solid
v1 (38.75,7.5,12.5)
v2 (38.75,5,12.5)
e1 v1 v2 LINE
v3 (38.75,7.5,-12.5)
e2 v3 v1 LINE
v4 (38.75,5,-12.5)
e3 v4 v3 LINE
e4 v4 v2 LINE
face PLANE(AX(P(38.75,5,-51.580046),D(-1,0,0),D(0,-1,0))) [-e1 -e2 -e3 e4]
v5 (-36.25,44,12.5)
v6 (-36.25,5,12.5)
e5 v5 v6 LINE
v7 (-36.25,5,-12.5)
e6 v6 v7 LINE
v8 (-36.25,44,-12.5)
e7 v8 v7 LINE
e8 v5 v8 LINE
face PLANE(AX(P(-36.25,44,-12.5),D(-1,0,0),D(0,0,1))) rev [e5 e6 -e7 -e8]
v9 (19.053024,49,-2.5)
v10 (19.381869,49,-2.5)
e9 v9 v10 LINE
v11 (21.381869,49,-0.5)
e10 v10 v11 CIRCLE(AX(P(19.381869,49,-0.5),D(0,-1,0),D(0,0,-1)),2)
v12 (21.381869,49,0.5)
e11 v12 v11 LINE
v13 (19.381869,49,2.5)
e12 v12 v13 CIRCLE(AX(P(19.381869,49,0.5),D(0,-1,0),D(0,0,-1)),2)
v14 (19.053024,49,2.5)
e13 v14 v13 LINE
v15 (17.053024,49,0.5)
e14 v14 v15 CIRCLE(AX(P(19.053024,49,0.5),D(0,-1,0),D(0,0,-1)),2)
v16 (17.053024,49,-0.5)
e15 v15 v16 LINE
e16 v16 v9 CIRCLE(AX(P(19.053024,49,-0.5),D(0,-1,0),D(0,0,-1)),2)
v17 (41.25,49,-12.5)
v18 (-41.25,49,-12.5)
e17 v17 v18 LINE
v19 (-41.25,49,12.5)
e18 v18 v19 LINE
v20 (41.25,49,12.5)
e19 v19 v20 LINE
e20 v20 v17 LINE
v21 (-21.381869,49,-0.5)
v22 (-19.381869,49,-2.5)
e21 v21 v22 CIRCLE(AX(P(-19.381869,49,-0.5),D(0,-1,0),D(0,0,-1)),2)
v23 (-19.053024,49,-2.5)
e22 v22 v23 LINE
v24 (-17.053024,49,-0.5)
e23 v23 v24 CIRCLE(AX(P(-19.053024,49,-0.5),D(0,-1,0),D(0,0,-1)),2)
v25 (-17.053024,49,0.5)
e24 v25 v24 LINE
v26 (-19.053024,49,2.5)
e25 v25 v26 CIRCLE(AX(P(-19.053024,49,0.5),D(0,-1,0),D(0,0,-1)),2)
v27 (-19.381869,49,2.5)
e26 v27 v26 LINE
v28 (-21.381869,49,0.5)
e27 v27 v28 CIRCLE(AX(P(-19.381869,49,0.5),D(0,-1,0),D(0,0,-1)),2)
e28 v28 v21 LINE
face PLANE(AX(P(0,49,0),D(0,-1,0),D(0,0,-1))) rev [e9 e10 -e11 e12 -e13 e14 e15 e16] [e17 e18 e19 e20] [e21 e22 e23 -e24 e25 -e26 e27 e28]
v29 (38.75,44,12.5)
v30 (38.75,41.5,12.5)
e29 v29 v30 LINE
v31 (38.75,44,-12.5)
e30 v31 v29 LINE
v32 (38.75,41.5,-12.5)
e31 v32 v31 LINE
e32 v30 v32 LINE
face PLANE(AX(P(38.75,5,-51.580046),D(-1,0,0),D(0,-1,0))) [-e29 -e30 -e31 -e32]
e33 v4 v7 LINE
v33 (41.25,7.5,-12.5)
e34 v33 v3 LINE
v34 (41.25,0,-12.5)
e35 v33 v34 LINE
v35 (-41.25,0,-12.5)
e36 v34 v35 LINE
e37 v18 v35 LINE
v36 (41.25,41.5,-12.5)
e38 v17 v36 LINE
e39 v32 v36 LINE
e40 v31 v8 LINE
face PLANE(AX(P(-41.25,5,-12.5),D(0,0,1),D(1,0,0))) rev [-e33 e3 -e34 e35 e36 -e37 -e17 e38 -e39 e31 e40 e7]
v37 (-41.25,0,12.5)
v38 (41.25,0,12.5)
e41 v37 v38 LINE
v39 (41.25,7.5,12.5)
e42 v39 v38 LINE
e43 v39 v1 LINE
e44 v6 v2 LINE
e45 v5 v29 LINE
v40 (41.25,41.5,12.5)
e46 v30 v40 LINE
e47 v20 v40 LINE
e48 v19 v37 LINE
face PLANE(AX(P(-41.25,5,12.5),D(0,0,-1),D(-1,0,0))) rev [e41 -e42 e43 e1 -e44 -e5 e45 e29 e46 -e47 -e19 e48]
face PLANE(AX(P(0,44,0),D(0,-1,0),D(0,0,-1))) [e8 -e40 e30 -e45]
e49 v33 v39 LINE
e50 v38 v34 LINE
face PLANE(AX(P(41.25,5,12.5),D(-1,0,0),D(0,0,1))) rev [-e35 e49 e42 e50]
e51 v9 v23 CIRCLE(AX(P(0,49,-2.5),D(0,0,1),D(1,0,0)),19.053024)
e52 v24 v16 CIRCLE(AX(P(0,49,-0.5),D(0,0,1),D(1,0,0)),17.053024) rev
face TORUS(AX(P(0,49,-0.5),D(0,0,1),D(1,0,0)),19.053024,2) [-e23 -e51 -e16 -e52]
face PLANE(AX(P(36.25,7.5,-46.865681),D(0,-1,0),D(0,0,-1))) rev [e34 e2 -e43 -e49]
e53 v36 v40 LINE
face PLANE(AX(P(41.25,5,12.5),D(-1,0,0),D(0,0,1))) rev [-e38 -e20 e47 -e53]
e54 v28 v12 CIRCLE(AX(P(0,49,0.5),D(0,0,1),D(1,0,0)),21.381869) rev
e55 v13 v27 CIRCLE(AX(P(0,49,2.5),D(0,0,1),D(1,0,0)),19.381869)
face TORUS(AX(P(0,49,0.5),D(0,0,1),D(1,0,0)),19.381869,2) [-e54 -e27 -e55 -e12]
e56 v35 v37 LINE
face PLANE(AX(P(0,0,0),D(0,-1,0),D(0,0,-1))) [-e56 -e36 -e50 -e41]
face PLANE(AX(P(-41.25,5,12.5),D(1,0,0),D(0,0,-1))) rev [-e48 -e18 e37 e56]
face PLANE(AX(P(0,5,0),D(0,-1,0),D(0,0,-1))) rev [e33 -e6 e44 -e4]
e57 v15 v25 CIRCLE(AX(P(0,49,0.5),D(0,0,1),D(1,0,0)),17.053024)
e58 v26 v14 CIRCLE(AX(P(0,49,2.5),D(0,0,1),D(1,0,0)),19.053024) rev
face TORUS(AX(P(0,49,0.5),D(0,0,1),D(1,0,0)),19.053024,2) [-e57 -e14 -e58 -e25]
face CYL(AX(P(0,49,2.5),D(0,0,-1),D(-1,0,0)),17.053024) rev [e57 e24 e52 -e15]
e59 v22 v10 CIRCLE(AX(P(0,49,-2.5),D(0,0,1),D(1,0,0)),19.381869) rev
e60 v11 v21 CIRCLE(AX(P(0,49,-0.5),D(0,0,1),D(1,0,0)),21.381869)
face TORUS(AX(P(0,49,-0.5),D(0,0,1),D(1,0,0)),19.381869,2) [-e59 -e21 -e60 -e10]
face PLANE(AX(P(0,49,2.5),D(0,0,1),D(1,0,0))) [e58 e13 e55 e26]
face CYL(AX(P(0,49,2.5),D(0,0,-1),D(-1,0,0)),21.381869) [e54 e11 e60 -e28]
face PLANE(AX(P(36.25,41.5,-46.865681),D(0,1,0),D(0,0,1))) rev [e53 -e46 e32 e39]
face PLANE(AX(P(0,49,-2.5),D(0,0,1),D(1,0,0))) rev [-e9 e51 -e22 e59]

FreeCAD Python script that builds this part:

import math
import FreeCAD as App
import Part
import Sketcher


def edges_at(feature, points):
    """Names of the edges that pass closest to the given points."""
    edges = feature.Shape.Edges
    near = lambda p: min(range(len(edges)), key=lambda i: edges[i].distToShape(Part.Vertex(*p))[0])
    return sorted({f"Edge{near(p) + 1}" for p in points})


def add_polygon(sketch, points):
    """Adds a closed chain of lines whose ends are joined by coincident constraints."""
    first, n = sketch.GeometryCount, len(points)
    for a, b in zip(points, points[1:] + points[:1]):
        sketch.addGeometry(Part.LineSegment(App.Vector(*a, 0), App.Vector(*b, 0)), False)
    for i in range(n):
        sketch.addConstraint(Sketcher.Constraint("Coincident", first + i, 2, first + (i + 1) % n, 1))

doc = App.newDocument("Part")
body = doc.addObject("PartDesign::Body", "Body")

sketch1 = body.newObject("Sketcher::SketchObject", "Sketch")
sketch1.AttachmentSupport = (doc.getObject("XZ_Plane"), [""])
sketch1.MapMode = "FlatFace"
add_polygon(sketch1, [(-41, -12), (-41, 12), (41, 12), (41, -12)])
sketch1.addConstraint([
    Sketcher.Constraint("Vertical", 0),
    Sketcher.Constraint("Horizontal", 1),
    Sketcher.Constraint("Vertical", 2),
    Sketcher.Constraint("Horizontal", 3),
    Sketcher.Constraint("Symmetric", 0, 2, 2, 2, -1, 1),
    Sketcher.Constraint("DistanceY", 0, 1, 0, 2, 25.0),
    Sketcher.Constraint("DistanceX", 1, 1, 1, 2, 82.5),
])
pad1 = body.newObject("PartDesign::Pad", "Pad")
pad1.Profile = sketch1
pad1.Length = 5
pad1.Reversed = True

sketch2 = body.newObject("Sketcher::SketchObject", "Sketch001")
sketch2.AttachmentSupport = (doc.getObject("XZ_Plane"), [""])
sketch2.MapMode = "FlatFace"
sketch2.AttachmentOffset = App.Placement(App.Vector(0, 0, -5), App.Rotation())
add_polygon(sketch2, [(-41, -12), (-41, 12), (-36, 12), (-36, -12)])
sketch2.addConstraint([
    Sketcher.Constraint("Vertical", 0),
    Sketcher.Constraint("Horizontal", 1),
    Sketcher.Constraint("Vertical", 2),
    Sketcher.Constraint("Horizontal", 3),
    Sketcher.Constraint("DistanceX", 1, 1, 1, 2, 5.0),
    Sketcher.Constraint("DistanceY", 0, 1, 0, 2, 25.0),
    Sketcher.Constraint("DistanceY", -1, 1, 0, 2, 12.5),
    Sketcher.Constraint("DistanceX", 0, 2, -1, 1, 41.25),
])
pad2 = body.newObject("PartDesign::Pad", "Pad001")
pad2.Profile = sketch2
pad2.Length = 39
pad2.Reversed = True

sketch3 = body.newObject("Sketcher::SketchObject", "Sketch002")
sketch3.AttachmentSupport = (doc.getObject("XZ_Plane"), [""])
sketch3.MapMode = "FlatFace"
sketch3.AttachmentOffset = App.Placement(App.Vector(0, 0, -44), App.Rotation())
add_polygon(sketch3, [(-41, -12), (-41, 12), (41, 12), (41, -12)])
sketch3.addConstraint([
    Sketcher.Constraint("Vertical", 0),
    Sketcher.Constraint("Horizontal", 1),
    Sketcher.Constraint("Vertical", 2),
    Sketcher.Constraint("Horizontal", 3),
    Sketcher.Constraint("Symmetric", 0, 2, 2, 2, -1, 1),
    Sketcher.Constraint("DistanceY", 0, 1, 0, 2, 25.0),
    Sketcher.Constraint("DistanceX", 1, 1, 1, 2, 82.5),
])
pad3 = body.newObject("PartDesign::Pad", "Pad002")
pad3.Profile = sketch3
pad3.Length = 5
pad3.Reversed = True

sketch4 = body.newObject("Sketcher::SketchObject", "Sketch003")
sketch4.AttachmentSupport = (doc.getObject("XY_Plane"), [""])
sketch4.MapMode = "FlatFace"
sketch4.addGeometry([
    Part.LineSegment(App.Vector(-21.4, 49, 0), App.Vector(-17.1, 49, 0)),
    Part.ArcOfCircle(Part.Circle(App.Vector(0, 49, 0), App.Vector(0, 0, 1), 17.1), math.radians(0), math.radians(180)),
    Part.LineSegment(App.Vector(17.1, 49, 0), App.Vector(21.4, 49, 0)),
    Part.ArcOfCircle(Part.Circle(App.Vector(0, 49, 0), App.Vector(0, 0, 1), 21.4), math.radians(0), math.radians(180)),
], False)
sketch4.addConstraint([
    Sketcher.Constraint("Coincident", 0, 2, 1, 2),
    Sketcher.Constraint("Coincident", 1, 1, 2, 1),
    Sketcher.Constraint("Coincident", 2, 2, 3, 1),
    Sketcher.Constraint("Coincident", 3, 2, 0, 1),
    Sketcher.Constraint("Horizontal", 0),
    Sketcher.Constraint("Horizontal", 2),
    Sketcher.Constraint("Coincident", 3, 3, 1, 3),
    Sketcher.Constraint("Symmetric", 0, 2, 1, 1, -2),
    Sketcher.Constraint("Horizontal", 3, 3, 0, 2),
    Sketcher.Constraint("DistanceY", -1, 1, 1, 3, 49.0),
    Sketcher.Constraint("Radius", 3, 21.381869),
    Sketcher.Constraint("Radius", 1, 17.053024),
])
pad4 = body.newObject("PartDesign::Pad", "Pad003")
pad4.Profile = sketch4
pad4.Length = 5
pad4.Midplane = True

sketch5 = body.newObject("Sketcher::SketchObject", "Sketch004")
sketch5.AttachmentSupport = (doc.getObject("XY_Plane"), [""])
sketch5.MapMode = "FlatFace"
sketch5.AttachmentOffset = App.Placement(App.Vector(0, 0, 12.5), App.Rotation())
add_polygon(sketch5, [(38.8, 44), (38.8, 5), (41.2, 5), (41.2, 44)])
sketch5.addConstraint([
    Sketcher.Constraint("Vertical", 0),
    Sketcher.Constraint("Horizontal", 1),
    Sketcher.Constraint("Vertical", 2),
    Sketcher.Constraint("Horizontal", 3),
    Sketcher.Constraint("DistanceY", 0, 2, 0, 1, 39.0),
    Sketcher.Constraint("DistanceX", 1, 1, 1, 2, 2.5),
    Sketcher.Constraint("DistanceY", -1, 1, 0, 2, 5.0),
    Sketcher.Constraint("DistanceX", -1, 1, 0, 2, 38.75),
])
pad5 = body.newObject("PartDesign::Pad", "Pad004")
pad5.Profile = sketch5
pad5.Length = 25
pad5.Reversed = True

sketch6 = body.newObject("Sketcher::SketchObject", "Sketch005")
sketch6.AttachmentSupport = (doc.getObject("XY_Plane"), [""])
sketch6.MapMode = "FlatFace"
sketch6.AttachmentOffset = App.Placement(App.Vector(0, 0, 12.5), App.Rotation())
add_polygon(sketch6, [(36, 42), (36, 8), (41, 8), (41, 42)])
sketch6.addConstraint([
    Sketcher.Constraint("Vertical", 0),
    Sketcher.Constraint("Horizontal", 1),
    Sketcher.Constraint("Vertical", 2),
    Sketcher.Constraint("Horizontal", 3),
    Sketcher.Constraint("DistanceX", 1, 1, 1, 2, 5.0),
    Sketcher.Constraint("DistanceY", 0, 2, 0, 1, 34.0),
    Sketcher.Constraint("DistanceY", -1, 1, 0, 2, 7.5),
    Sketcher.Constraint("DistanceX", -1, 1, 0, 2, 36.25),
])
pocket1 = body.newObject("PartDesign::Pocket", "Pocket")
pocket1.Profile = sketch6
pocket1.Type = "ThroughAll"
pocket1.Midplane = True
doc.recompute()

fillet = body.newObject("PartDesign::Fillet", "Fillet")
fillet.Base = (pocket1, edges_at(pocket1, [(0, 70.382, -2.5), (0, 70.382, 2.5)]))
fillet.Radius = 2
doc.recompute()

fillet2 = body.newObject("PartDesign::Fillet", "Fillet001")
fillet2.Base = (fillet, edges_at(fillet, [(0, 66.053, -2.5), (0, 66.053, 2.5)]))
fillet2.Radius = 2

doc.recompute()
